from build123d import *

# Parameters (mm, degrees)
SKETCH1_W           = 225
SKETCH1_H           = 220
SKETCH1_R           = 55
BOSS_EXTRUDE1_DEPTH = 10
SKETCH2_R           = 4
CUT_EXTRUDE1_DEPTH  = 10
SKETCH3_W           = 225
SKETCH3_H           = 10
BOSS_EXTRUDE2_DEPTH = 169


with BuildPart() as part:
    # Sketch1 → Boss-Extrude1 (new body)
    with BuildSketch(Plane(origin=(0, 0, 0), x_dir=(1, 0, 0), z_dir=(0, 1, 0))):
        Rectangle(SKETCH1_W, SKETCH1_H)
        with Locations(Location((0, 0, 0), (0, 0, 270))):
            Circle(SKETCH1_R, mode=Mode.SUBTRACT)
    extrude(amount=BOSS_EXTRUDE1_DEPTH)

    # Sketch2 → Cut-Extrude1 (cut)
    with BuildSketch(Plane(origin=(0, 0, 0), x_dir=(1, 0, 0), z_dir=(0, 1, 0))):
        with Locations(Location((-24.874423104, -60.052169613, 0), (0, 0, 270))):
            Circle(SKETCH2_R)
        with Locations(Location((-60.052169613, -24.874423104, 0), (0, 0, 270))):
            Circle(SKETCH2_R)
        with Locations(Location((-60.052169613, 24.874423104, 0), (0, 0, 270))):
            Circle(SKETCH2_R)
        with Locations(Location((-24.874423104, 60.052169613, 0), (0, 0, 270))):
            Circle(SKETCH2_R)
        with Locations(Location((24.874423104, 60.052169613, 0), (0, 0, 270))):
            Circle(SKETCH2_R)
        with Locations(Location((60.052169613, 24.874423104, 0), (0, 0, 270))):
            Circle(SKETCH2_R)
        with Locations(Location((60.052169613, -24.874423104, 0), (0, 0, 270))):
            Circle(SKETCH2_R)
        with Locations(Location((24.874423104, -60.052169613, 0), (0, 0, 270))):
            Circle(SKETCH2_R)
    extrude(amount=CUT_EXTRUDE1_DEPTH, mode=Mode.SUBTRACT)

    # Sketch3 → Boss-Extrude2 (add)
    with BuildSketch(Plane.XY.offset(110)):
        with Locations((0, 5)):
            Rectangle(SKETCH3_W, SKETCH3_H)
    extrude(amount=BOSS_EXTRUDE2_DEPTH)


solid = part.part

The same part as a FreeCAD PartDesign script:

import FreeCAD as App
import Part
import Sketcher
from FreeCAD import Vector


def add_polygon(sketch, points):
    """Adds a closed chain of lines whose ends are joined by coincident constraints."""
    first, n = sketch.GeometryCount, len(points)
    for a, b in zip(points, points[1:] + points[:1]):
        sketch.addGeometry(Part.LineSegment(App.Vector(*a, 0), App.Vector(*b, 0)), False)
    for i in range(n):
        sketch.addConstraint(Sketcher.Constraint("Coincident", first + i, 2, first + (i + 1) % n, 1))

doc = App.newDocument("Part")
body = doc.addObject("PartDesign::Body", "Body")

sketch1 = doc.addObject("Sketcher::SketchObject", "Sketch")
body.addObject(sketch1)
sketch1.AttachmentSupport = (doc.XZ_Plane, [""])
sketch1.MapMode = "FlatFace"
add_polygon(sketch1, [(-112.5, -110), (-112.5, 110), (112.5, 110), (112.5, -110)])
sketch1.addGeometry(Part.Circle(Vector(0, 0, 0), Vector(0, 0, 1), 55), False)
sketch1.addConstraint(Sketcher.Constraint("Vertical", 0))
sketch1.addConstraint(Sketcher.Constraint("Horizontal", 1))
sketch1.addConstraint(Sketcher.Constraint("Vertical", 2))
sketch1.addConstraint(Sketcher.Constraint("Horizontal", 3))
sketch1.addConstraint(Sketcher.Constraint("Coincident", 4, 3, -1, 1))
sketch1.addConstraint(Sketcher.Constraint("Symmetric", 0, 2, 2, 2, -1, 1))
sketch1.addConstraint(Sketcher.Constraint("Diameter", 4, 110.0))
sketch1.addConstraint(Sketcher.Constraint("DistanceX", 1, 1, 1, 2, 225.0))
sketch1.addConstraint(Sketcher.Constraint("DistanceY", 0, 1, 0, 2, 220.0))
pad1 = doc.addObject("PartDesign::Pad", "Pad")
body.addObject(pad1)
pad1.Profile = sketch1
pad1.Length = 10
pad1.Reversed = True

sketch2 = doc.addObject("Sketcher::SketchObject", "Sketch001")
body.addObject(sketch2)
sketch2.AttachmentSupport = (doc.XZ_Plane, [""])
sketch2.MapMode = "FlatFace"
sketch2.addGeometry(Part.Circle(Vector(-24.874423, 60.05217, 0), Vector(0, 0, 1), 4), False)
sketch2.addGeometry(Part.Circle(Vector(-60.05217, 24.874423, 0), Vector(0, 0, 1), 4), False)
sketch2.addGeometry(Part.Circle(Vector(-60.05217, -24.874423, 0), Vector(0, 0, 1), 4), False)
sketch2.addGeometry(Part.Circle(Vector(-24.874423, -60.05217, 0), Vector(0, 0, 1), 4), False)
sketch2.addGeometry(Part.Circle(Vector(24.874423, -60.05217, 0), Vector(0, 0, 1), 4), False)
sketch2.addGeometry(Part.Circle(Vector(60.05217, -24.874423, 0), Vector(0, 0, 1), 4), False)
sketch2.addGeometry(Part.Circle(Vector(60.05217, 24.874423, 0), Vector(0, 0, 1), 4), False)
sketch2.addGeometry(Part.Circle(Vector(24.874423, 60.05217, 0), Vector(0, 0, 1), 4), False)
sketch2.addConstraint(Sketcher.Constraint("Equal", 0, 1))
sketch2.addConstraint(Sketcher.Constraint("Equal", 1, 2))
sketch2.addConstraint(Sketcher.Constraint("Equal", 2, 3))
sketch2.addConstraint(Sketcher.Constraint("Equal", 3, 4))
sketch2.addConstraint(Sketcher.Constraint("Equal", 4, 5))
sketch2.addConstraint(Sketcher.Constraint("Equal", 5, 6))
sketch2.addConstraint(Sketcher.Constraint("Equal", 6, 7))
sketch2.addConstraint(Sketcher.Constraint("Symmetric", 0, 3, 4, 3, -1, 1))
sketch2.addConstraint(Sketcher.Constraint("Symmetric", 1, 3, 5, 3, -1, 1))
sketch2.addConstraint(Sketcher.Constraint("Symmetric", 2, 3, 6, 3, -1, 1))
sketch2.addConstraint(Sketcher.Constraint("Symmetric", 3, 3, 7, 3, -1, 1))
sketch2.addConstraint(Sketcher.Constraint("Symmetric", 3, 3, 4, 3, -2))
sketch2.addConstraint(Sketcher.Constraint("Symmetric", 2, 3, 5, 3, -2))
sketch2.addConstraint(Sketcher.Constraint("Diameter", 0, 8.0))
sketch2.addConstraint(Sketcher.Constraint("DistanceY", -1, 1, 0, 3, 60.05217))
sketch2.addConstraint(Sketcher.Constraint("DistanceX", 1, 3, -1, 1, 60.05217))
sketch2.addConstraint(Sketcher.Constraint("DistanceX", 0, 3, -1, 1, 24.874423))
sketch2.addConstraint(Sketcher.Constraint("DistanceY", -1, 1, 1, 3, 24.874423))
pocket1 = doc.addObject("PartDesign::Pocket", "Pocket")
body.addObject(pocket1)
pocket1.Profile = sketch2
pocket1.Length = 10

sketch3 = doc.addObject("Sketcher::SketchObject", "Sketch002")
body.addObject(sketch3)
sketch3.AttachmentSupport = (doc.XY_Plane, [""])
sketch3.MapMode = "FlatFace"
sketch3.AttachmentOffset = App.Placement(Vector(0, 0, 110), App.Rotation())
add_polygon(sketch3, [(-112.5, 10), (-112.5, 0), (112.5, 0), (112.5, 10)])
sketch3.addConstraint(Sketcher.Constraint("Vertical", 0))
sketch3.addConstraint(Sketcher.Constraint("Horizontal", 1))
sketch3.addConstraint(Sketcher.Constraint("Vertical", 2))
sketch3.addConstraint(Sketcher.Constraint("Horizontal", 3))
sketch3.addConstraint(Sketcher.Constraint("Symmetric", 0, 2, 1, 2, -1, 1))
sketch3.addConstraint(Sketcher.Constraint("DistanceX", 1, 1, 1, 2, 225.0))
sketch3.addConstraint(Sketcher.Constraint("DistanceY", 0, 2, 0, 1, 10.0))
pad2 = doc.addObject("PartDesign::Pad", "Pad001")
body.addObject(pad2)
pad2.Profile = sketch3
pad2.Length = 169

doc.recompute()
